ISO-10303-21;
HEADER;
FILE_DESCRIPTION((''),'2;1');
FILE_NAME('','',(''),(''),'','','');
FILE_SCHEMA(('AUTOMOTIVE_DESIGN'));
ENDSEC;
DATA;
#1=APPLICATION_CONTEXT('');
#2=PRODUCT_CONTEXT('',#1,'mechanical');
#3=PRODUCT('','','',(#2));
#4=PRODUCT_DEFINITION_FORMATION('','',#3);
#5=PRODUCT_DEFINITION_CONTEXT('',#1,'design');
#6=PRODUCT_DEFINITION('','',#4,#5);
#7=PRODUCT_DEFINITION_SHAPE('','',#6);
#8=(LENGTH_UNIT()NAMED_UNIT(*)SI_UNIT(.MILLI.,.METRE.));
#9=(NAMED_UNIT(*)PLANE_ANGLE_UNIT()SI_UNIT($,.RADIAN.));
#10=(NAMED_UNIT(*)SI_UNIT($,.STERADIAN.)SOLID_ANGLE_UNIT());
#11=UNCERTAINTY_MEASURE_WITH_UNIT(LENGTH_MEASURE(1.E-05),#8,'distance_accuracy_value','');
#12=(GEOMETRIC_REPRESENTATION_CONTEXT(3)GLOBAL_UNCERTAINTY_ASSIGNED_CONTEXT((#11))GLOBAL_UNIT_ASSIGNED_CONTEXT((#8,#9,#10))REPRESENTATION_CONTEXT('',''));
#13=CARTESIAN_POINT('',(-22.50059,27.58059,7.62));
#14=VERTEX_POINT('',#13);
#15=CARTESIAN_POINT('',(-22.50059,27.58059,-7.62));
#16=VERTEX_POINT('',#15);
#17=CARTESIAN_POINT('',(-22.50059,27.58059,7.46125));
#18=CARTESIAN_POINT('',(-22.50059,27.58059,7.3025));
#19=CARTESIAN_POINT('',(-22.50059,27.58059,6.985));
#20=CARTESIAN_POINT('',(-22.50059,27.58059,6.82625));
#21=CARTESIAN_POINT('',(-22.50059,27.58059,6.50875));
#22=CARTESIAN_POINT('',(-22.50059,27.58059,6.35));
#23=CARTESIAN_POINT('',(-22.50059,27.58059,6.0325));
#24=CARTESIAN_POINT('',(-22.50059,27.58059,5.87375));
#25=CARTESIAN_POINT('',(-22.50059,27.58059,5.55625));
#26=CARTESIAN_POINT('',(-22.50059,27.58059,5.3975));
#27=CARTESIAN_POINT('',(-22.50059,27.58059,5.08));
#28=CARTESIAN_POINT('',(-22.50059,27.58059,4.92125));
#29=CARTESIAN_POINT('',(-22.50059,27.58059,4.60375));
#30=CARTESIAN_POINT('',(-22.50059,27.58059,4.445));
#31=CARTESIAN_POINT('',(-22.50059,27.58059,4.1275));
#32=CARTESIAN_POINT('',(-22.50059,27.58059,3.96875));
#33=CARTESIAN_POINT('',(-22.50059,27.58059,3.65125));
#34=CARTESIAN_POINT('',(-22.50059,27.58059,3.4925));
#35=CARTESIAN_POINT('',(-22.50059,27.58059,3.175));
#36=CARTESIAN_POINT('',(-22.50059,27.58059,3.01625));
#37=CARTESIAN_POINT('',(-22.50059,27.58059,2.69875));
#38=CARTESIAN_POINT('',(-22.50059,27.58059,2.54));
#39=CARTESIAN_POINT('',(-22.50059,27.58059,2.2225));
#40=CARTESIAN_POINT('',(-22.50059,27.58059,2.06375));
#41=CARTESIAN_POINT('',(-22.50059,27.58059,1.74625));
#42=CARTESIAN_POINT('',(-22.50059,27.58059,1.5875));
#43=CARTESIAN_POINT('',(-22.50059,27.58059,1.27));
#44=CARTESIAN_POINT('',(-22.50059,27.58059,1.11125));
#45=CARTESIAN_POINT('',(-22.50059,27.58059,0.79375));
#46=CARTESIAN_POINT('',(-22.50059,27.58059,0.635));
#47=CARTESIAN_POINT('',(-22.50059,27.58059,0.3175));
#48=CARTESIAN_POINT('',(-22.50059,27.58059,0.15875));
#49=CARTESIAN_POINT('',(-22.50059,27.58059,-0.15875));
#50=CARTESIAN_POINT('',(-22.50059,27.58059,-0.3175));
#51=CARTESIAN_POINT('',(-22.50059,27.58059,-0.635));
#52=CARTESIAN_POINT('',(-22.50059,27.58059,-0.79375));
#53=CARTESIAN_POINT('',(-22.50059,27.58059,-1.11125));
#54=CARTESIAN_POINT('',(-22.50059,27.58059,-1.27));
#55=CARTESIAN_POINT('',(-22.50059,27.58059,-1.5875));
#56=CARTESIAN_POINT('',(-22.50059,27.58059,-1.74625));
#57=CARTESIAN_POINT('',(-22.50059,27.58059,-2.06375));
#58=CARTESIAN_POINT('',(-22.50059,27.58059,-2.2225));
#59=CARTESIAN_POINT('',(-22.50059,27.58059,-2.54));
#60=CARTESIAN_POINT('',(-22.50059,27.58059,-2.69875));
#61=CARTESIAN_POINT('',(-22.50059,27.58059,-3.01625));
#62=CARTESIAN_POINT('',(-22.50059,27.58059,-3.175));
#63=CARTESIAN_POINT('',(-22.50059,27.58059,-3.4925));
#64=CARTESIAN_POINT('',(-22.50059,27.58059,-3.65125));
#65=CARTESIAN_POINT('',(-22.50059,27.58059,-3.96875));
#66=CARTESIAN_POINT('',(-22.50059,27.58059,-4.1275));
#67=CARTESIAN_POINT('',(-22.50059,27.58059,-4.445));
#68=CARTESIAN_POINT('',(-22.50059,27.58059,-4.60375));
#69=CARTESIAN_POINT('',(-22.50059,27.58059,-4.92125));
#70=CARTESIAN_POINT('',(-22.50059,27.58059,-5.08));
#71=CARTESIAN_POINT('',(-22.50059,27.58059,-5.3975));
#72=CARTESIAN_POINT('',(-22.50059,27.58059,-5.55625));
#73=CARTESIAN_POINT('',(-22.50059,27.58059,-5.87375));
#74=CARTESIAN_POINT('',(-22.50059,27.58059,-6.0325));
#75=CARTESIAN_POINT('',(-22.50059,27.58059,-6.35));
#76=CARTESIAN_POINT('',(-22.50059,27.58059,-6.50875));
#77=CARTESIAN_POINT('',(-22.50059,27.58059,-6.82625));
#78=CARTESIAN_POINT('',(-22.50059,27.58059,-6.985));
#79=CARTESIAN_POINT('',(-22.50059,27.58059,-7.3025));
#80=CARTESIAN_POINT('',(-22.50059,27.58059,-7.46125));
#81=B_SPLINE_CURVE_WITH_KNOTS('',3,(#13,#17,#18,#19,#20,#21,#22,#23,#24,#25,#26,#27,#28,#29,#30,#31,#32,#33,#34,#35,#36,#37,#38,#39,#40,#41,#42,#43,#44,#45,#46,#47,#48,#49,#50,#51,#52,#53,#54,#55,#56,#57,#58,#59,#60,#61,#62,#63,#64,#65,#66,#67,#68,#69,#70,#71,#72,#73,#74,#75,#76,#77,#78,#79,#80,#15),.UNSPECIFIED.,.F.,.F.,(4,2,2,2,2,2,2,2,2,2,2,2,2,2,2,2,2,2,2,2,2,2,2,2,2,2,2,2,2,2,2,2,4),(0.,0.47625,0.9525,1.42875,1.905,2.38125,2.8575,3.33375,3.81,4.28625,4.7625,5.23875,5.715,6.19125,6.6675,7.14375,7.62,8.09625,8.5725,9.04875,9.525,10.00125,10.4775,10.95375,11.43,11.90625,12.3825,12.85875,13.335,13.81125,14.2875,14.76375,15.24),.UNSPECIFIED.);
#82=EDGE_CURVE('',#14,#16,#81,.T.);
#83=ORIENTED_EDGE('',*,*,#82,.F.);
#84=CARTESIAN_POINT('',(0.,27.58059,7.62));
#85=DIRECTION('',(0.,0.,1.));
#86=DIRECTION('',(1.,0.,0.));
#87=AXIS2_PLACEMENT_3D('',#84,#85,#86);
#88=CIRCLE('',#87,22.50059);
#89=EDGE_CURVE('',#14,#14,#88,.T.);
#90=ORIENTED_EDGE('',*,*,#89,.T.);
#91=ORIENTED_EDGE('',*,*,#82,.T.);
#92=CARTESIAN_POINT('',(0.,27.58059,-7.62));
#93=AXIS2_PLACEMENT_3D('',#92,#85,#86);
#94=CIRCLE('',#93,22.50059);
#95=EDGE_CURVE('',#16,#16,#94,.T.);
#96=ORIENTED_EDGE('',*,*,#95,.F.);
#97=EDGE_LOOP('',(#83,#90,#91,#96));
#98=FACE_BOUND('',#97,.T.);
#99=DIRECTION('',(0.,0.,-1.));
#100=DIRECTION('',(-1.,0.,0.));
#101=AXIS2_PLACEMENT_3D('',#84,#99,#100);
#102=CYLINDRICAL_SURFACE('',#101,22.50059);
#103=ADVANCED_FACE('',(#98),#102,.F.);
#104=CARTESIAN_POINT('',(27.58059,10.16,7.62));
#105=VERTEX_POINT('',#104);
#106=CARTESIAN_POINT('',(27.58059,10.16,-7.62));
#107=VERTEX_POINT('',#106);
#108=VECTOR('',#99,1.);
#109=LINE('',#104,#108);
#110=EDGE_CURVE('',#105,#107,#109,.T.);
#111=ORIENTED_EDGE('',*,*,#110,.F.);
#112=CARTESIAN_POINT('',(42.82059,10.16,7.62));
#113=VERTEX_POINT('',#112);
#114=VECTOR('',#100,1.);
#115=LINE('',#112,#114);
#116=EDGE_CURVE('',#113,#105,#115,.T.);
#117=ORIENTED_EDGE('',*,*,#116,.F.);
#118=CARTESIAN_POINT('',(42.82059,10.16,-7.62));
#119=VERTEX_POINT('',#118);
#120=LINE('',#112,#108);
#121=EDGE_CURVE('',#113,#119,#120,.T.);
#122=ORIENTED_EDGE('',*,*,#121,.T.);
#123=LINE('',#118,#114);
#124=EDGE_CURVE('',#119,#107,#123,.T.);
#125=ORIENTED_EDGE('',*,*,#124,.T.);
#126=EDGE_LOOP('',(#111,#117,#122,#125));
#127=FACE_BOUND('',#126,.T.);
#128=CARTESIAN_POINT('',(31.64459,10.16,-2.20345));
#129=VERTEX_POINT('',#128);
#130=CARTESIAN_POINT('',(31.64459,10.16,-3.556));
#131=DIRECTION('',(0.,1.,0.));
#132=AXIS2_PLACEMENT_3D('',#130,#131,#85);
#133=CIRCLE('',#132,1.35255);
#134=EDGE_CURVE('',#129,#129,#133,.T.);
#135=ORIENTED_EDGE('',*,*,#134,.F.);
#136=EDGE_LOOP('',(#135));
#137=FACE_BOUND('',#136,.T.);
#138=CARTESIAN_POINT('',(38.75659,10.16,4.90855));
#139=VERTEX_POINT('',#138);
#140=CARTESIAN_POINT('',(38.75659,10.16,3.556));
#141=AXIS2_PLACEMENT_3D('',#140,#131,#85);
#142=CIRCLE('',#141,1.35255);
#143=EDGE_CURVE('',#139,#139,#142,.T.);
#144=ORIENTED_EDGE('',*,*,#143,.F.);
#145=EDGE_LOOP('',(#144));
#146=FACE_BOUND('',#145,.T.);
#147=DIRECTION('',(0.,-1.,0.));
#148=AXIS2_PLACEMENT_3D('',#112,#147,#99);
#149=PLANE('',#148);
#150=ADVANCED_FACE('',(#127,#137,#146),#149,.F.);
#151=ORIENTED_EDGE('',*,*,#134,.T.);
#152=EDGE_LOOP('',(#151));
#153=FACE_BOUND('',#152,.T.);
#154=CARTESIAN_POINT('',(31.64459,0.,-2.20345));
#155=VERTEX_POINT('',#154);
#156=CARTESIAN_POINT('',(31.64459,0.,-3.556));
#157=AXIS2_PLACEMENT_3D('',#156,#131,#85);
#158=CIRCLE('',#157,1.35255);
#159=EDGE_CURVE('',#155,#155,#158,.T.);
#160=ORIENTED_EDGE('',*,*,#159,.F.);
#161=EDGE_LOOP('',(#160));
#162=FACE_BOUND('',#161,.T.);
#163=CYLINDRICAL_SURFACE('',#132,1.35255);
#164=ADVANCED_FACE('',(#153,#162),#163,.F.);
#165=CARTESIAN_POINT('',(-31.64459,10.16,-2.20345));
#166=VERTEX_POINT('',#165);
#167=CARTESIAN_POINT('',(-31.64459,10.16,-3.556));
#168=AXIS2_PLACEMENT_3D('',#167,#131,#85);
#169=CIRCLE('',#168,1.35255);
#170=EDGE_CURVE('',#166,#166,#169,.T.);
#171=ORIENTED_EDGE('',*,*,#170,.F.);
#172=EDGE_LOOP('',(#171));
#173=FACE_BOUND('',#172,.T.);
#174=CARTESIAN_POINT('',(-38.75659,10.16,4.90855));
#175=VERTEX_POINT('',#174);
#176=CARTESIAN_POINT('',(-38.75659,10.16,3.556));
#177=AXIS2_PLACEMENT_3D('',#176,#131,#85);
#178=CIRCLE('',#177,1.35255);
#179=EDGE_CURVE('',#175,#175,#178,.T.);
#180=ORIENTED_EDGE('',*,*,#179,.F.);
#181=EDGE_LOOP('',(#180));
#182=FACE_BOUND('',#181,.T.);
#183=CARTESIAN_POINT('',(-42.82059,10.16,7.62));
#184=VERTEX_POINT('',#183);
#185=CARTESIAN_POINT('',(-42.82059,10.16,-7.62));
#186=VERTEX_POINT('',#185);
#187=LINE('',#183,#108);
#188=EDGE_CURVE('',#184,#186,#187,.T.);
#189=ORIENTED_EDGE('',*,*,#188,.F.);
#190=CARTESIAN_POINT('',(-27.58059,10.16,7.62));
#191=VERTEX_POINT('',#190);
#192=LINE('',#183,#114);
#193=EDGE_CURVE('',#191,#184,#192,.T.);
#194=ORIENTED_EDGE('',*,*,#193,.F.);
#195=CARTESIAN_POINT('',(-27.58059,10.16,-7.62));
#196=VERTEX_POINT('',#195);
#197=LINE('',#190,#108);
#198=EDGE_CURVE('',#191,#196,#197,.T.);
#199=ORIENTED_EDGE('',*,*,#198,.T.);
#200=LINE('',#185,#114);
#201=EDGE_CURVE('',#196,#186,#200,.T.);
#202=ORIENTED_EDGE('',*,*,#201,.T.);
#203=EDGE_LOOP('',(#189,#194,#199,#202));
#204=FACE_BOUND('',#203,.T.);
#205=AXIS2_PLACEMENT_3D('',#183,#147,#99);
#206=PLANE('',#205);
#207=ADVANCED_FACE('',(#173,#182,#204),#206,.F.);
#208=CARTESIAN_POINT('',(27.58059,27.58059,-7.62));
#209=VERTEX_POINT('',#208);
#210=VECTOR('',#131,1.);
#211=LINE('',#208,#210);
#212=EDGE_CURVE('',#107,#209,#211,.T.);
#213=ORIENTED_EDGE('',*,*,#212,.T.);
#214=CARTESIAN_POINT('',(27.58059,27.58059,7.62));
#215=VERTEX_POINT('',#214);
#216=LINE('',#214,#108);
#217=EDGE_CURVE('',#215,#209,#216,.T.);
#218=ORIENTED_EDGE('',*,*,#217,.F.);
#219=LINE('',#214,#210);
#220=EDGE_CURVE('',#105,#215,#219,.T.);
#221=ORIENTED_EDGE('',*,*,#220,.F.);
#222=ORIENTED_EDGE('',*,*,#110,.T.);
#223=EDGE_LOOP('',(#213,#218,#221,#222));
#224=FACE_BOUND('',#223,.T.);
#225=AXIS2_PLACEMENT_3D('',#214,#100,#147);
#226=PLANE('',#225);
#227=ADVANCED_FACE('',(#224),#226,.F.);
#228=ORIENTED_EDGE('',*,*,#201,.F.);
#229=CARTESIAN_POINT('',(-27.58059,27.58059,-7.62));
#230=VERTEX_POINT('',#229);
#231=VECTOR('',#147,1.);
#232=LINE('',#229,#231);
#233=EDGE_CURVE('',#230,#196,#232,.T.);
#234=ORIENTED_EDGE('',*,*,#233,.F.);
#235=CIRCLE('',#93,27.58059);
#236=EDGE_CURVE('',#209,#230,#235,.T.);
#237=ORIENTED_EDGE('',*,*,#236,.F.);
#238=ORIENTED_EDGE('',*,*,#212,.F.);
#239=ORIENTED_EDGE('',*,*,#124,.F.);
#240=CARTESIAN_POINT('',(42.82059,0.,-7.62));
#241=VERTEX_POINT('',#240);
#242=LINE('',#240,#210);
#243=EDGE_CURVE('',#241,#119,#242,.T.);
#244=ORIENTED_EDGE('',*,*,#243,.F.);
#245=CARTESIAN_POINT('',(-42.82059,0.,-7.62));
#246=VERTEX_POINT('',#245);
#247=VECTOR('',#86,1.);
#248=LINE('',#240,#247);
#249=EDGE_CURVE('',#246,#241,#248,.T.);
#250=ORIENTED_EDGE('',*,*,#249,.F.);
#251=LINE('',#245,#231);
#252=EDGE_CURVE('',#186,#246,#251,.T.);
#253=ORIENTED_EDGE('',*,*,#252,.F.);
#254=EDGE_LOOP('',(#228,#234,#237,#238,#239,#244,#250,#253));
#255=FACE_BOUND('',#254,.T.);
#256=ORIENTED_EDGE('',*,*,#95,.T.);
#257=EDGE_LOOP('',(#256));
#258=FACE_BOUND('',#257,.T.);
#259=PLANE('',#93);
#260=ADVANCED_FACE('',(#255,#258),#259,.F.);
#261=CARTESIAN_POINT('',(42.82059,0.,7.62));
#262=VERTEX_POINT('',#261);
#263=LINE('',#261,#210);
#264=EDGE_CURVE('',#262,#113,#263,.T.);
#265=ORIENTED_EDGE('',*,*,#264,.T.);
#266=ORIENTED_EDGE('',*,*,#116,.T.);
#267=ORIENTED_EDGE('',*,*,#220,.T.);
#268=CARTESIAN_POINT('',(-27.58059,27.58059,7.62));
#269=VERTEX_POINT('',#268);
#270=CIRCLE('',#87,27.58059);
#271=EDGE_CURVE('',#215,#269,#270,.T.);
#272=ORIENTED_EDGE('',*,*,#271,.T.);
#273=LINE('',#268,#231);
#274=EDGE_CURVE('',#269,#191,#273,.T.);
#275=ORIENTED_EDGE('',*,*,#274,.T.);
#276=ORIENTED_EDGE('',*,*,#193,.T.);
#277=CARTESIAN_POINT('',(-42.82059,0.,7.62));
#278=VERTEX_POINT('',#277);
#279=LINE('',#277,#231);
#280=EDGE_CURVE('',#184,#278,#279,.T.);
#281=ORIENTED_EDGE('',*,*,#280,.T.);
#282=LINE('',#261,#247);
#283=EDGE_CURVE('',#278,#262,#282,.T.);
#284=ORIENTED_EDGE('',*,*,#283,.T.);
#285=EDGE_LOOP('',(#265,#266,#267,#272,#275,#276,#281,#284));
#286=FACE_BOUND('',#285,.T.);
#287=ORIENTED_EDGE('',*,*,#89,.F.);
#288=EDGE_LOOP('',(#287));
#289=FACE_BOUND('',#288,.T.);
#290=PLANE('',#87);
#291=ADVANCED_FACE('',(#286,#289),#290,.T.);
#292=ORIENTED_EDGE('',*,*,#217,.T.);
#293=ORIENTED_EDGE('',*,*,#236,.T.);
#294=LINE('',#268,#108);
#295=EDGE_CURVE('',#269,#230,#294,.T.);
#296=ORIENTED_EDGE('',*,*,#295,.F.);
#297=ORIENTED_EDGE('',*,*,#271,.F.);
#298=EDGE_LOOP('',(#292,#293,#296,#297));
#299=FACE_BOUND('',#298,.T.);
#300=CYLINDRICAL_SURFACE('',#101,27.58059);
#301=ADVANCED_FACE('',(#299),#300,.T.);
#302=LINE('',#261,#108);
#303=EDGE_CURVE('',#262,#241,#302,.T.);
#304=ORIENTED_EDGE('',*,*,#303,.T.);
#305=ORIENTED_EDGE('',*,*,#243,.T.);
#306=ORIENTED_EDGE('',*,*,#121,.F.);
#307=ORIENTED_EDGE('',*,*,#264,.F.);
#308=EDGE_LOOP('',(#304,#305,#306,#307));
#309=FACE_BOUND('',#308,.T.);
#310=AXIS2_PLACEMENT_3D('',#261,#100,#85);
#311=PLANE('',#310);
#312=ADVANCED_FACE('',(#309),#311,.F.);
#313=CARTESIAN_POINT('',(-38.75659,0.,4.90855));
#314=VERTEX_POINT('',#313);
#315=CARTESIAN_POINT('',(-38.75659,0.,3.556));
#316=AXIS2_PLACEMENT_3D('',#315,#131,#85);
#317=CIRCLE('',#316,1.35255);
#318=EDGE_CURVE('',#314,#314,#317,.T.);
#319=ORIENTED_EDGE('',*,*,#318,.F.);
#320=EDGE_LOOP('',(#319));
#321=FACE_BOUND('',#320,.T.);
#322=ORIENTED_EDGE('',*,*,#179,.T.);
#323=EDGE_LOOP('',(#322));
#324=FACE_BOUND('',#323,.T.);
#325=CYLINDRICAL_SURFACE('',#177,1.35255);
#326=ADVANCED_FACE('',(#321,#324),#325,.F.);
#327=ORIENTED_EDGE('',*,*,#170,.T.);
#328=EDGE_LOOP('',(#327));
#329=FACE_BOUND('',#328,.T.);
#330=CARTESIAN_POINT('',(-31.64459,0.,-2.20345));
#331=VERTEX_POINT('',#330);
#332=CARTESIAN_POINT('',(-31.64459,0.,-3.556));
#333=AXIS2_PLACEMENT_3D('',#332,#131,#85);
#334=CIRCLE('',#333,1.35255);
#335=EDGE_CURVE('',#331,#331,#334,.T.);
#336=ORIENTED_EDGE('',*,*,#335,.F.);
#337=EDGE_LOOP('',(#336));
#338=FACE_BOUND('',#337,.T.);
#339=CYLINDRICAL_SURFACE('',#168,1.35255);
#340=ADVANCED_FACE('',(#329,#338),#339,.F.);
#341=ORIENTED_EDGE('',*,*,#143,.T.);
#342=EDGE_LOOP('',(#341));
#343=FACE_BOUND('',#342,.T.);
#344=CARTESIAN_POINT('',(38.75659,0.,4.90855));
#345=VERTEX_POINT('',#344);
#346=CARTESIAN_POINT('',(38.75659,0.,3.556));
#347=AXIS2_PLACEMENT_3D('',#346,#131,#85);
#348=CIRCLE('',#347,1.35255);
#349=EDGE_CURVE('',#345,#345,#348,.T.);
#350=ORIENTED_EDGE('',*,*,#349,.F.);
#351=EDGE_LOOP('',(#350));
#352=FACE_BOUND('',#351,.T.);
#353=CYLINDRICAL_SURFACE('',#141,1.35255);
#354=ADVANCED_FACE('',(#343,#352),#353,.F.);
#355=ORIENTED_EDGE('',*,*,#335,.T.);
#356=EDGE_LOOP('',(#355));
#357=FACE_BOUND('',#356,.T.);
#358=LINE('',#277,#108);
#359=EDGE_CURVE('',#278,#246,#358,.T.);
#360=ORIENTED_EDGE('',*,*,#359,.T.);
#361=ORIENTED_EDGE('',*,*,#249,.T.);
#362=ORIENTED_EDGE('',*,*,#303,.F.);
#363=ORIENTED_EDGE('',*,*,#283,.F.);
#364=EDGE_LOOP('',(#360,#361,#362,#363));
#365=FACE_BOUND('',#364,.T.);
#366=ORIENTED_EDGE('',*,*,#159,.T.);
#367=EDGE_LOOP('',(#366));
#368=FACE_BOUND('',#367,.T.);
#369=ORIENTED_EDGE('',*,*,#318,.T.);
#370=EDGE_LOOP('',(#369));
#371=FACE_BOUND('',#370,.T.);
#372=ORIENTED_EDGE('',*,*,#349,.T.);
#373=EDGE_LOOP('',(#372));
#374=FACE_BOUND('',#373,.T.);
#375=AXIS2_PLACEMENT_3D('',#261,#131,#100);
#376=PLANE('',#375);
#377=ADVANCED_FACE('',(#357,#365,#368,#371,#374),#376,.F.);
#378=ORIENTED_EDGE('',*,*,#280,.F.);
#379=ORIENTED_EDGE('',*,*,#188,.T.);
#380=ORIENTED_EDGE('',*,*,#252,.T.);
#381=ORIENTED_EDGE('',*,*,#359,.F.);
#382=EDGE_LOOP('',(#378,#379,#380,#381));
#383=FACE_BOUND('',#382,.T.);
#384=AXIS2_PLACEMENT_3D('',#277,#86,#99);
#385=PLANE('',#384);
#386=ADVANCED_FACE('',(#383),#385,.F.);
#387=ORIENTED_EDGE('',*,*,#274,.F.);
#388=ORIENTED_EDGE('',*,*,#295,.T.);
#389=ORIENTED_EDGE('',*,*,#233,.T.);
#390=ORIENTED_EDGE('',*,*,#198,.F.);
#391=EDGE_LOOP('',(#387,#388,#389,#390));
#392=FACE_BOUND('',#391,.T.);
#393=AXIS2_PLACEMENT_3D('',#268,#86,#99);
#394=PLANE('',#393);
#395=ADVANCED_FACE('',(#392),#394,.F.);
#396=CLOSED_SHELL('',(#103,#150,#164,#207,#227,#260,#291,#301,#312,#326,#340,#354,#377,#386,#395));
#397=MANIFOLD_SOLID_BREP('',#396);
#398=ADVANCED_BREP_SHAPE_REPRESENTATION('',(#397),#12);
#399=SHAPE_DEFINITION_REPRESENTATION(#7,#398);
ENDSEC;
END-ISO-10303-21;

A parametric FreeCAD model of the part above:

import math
import FreeCAD as App
import Part
import Sketcher
Q = App.Units.Quantity

doc = App.newDocument("Part")
body = doc.addObject("PartDesign::Body", "Body")

# Sketch on XY plane
sketch1 = body.newObject("Sketcher::SketchObject", "Sketch")
sketch1.AttachmentSupport = (doc.getObject("XY_Plane"), [""])
sketch1.MapMode = "FlatFace"
sketch1.addGeometry([
    Part.LineSegment(App.Vector(-28, 28, 0), App.Vector(-28, 10, 0)),  # 0
    Part.LineSegment(App.Vector(-28, 10, 0), App.Vector(-43, 10, 0)),  # 1
    Part.LineSegment(App.Vector(-43, 10, 0), App.Vector(-43, 0, 0)),  # 2
    Part.LineSegment(App.Vector(-43, 0, 0), App.Vector(43, 0, 0)),  # 3
    Part.LineSegment(App.Vector(43, 0, 0), App.Vector(43, 10, 0)),  # 4
    Part.LineSegment(App.Vector(43, 10, 0), App.Vector(28, 10, 0)),  # 5
    Part.LineSegment(App.Vector(28, 10, 0), App.Vector(28, 28, 0)),  # 6
    Part.ArcOfCircle(Part.Circle(App.Vector(0, 28, 0), App.Vector(0, 0, 1), 28), math.radians(0), math.radians(180)),  # 7
    Part.Circle(App.Vector(0, 28, 0), App.Vector(0, 0, 1), 23),  # 8
], False)
sketch1.addConstraint([
    Sketcher.Constraint("Coincident", 0, 2, 1, 1),
    Sketcher.Constraint("Coincident", 1, 2, 2, 1),
    Sketcher.Constraint("Coincident", 2, 2, 3, 1),
    Sketcher.Constraint("Coincident", 3, 2, 4, 1),
    Sketcher.Constraint("Coincident", 4, 2, 5, 1),
    Sketcher.Constraint("Coincident", 5, 2, 6, 1),
    Sketcher.Constraint("Tangent", 6, 2, 7, 1),
    Sketcher.Constraint("Tangent", 7, 2, 0, 1),
    Sketcher.Constraint("Vertical", 0),
    Sketcher.Constraint("Horizontal", 1),
    Sketcher.Constraint("Vertical", 2),
    Sketcher.Constraint("Horizontal", 3),
    Sketcher.Constraint("Vertical", 4),
    Sketcher.Constraint("Horizontal", 5),
    Sketcher.Constraint("Vertical", 6),
    Sketcher.Constraint("Coincident", 8, 3, 7, 3),
    Sketcher.Constraint("Symmetric", 2, 2, 3, 2, -1, 1),
    Sketcher.Constraint("Symmetric", 0, 2, 5, 2, -2),
    Sketcher.Constraint("DistanceX", 1, 2, 1, 1, Q("0.6 in")),
    Sketcher.Constraint("DistanceY", 2, 2, 2, 1, Q("0.4 in")),
    Sketcher.Constraint("Diameter", 8, Q("1.7717 in")),
    Sketcher.Constraint("DistanceX", 3, 1, 3, 2, Q("3.3717 in")),
    Sketcher.Constraint("DistanceY", 0, 2, 0, 1, 17.42059),
])
pad1 = body.newObject("PartDesign::Pad", "Pad")
pad1.Profile = sketch1
pad1.Length = Q("0.6 in")
pad1.Midplane = True

# Sketch on XZ plane
sketch2 = body.newObject("Sketcher::SketchObject", "Sketch001")
sketch2.AttachmentSupport = (doc.getObject("XZ_Plane"), [""])
sketch2.MapMode = "FlatFace"
sketch2.AttachmentOffset = App.Placement(App.Vector(0, 0, -0.4 * 25.4), App.Rotation())
sketch2.addGeometry([
    Part.Circle(App.Vector(-38.8, 3.6, 0), App.Vector(0, 0, 1), 1.4),
    Part.Circle(App.Vector(-31.6, -3.6, 0), App.Vector(0, 0, 1), 1.4),
    Part.Circle(App.Vector(31.6, -3.6, 0), App.Vector(0, 0, 1), 1.4),
    Part.Circle(App.Vector(38.8, 3.6, 0), App.Vector(0, 0, 1), 1.4),
], False)
sketch2.addConstraint([
    Sketcher.Constraint("Equal", 0, 1),
    Sketcher.Constraint("Equal", 1, 2),
    Sketcher.Constraint("Equal", 2, 3),
    Sketcher.Constraint("Symmetric", 1, 3, 2, 3, -2),
    Sketcher.Constraint("Symmetric", 0, 3, 3, 3, -2),
    Sketcher.Constraint("Diameter", 0, Q("0.1065 in")),
    Sketcher.Constraint("DistanceY", -1, 1, 0, 3, Q("0.14 in")),
    Sketcher.Constraint("DistanceY", 1, 3, -1, 1, Q("0.14 in")),
    Sketcher.Constraint("DistanceX", 0, 3, 1, 3, Q("0.28 in")),
    Sketcher.Constraint("DistanceX", 1, 3, 2, 3, Q("2.4917 in")),
])
doc.recompute()
hole = body.newObject("PartDesign::Hole", "Hole")
hole.Profile = sketch2
hole.ThreadType = "None"
hole.Diameter = Q("0.1065 in")
hole.DepthType = "ThroughAll"
hole.Reversed = True

doc.recompute()
